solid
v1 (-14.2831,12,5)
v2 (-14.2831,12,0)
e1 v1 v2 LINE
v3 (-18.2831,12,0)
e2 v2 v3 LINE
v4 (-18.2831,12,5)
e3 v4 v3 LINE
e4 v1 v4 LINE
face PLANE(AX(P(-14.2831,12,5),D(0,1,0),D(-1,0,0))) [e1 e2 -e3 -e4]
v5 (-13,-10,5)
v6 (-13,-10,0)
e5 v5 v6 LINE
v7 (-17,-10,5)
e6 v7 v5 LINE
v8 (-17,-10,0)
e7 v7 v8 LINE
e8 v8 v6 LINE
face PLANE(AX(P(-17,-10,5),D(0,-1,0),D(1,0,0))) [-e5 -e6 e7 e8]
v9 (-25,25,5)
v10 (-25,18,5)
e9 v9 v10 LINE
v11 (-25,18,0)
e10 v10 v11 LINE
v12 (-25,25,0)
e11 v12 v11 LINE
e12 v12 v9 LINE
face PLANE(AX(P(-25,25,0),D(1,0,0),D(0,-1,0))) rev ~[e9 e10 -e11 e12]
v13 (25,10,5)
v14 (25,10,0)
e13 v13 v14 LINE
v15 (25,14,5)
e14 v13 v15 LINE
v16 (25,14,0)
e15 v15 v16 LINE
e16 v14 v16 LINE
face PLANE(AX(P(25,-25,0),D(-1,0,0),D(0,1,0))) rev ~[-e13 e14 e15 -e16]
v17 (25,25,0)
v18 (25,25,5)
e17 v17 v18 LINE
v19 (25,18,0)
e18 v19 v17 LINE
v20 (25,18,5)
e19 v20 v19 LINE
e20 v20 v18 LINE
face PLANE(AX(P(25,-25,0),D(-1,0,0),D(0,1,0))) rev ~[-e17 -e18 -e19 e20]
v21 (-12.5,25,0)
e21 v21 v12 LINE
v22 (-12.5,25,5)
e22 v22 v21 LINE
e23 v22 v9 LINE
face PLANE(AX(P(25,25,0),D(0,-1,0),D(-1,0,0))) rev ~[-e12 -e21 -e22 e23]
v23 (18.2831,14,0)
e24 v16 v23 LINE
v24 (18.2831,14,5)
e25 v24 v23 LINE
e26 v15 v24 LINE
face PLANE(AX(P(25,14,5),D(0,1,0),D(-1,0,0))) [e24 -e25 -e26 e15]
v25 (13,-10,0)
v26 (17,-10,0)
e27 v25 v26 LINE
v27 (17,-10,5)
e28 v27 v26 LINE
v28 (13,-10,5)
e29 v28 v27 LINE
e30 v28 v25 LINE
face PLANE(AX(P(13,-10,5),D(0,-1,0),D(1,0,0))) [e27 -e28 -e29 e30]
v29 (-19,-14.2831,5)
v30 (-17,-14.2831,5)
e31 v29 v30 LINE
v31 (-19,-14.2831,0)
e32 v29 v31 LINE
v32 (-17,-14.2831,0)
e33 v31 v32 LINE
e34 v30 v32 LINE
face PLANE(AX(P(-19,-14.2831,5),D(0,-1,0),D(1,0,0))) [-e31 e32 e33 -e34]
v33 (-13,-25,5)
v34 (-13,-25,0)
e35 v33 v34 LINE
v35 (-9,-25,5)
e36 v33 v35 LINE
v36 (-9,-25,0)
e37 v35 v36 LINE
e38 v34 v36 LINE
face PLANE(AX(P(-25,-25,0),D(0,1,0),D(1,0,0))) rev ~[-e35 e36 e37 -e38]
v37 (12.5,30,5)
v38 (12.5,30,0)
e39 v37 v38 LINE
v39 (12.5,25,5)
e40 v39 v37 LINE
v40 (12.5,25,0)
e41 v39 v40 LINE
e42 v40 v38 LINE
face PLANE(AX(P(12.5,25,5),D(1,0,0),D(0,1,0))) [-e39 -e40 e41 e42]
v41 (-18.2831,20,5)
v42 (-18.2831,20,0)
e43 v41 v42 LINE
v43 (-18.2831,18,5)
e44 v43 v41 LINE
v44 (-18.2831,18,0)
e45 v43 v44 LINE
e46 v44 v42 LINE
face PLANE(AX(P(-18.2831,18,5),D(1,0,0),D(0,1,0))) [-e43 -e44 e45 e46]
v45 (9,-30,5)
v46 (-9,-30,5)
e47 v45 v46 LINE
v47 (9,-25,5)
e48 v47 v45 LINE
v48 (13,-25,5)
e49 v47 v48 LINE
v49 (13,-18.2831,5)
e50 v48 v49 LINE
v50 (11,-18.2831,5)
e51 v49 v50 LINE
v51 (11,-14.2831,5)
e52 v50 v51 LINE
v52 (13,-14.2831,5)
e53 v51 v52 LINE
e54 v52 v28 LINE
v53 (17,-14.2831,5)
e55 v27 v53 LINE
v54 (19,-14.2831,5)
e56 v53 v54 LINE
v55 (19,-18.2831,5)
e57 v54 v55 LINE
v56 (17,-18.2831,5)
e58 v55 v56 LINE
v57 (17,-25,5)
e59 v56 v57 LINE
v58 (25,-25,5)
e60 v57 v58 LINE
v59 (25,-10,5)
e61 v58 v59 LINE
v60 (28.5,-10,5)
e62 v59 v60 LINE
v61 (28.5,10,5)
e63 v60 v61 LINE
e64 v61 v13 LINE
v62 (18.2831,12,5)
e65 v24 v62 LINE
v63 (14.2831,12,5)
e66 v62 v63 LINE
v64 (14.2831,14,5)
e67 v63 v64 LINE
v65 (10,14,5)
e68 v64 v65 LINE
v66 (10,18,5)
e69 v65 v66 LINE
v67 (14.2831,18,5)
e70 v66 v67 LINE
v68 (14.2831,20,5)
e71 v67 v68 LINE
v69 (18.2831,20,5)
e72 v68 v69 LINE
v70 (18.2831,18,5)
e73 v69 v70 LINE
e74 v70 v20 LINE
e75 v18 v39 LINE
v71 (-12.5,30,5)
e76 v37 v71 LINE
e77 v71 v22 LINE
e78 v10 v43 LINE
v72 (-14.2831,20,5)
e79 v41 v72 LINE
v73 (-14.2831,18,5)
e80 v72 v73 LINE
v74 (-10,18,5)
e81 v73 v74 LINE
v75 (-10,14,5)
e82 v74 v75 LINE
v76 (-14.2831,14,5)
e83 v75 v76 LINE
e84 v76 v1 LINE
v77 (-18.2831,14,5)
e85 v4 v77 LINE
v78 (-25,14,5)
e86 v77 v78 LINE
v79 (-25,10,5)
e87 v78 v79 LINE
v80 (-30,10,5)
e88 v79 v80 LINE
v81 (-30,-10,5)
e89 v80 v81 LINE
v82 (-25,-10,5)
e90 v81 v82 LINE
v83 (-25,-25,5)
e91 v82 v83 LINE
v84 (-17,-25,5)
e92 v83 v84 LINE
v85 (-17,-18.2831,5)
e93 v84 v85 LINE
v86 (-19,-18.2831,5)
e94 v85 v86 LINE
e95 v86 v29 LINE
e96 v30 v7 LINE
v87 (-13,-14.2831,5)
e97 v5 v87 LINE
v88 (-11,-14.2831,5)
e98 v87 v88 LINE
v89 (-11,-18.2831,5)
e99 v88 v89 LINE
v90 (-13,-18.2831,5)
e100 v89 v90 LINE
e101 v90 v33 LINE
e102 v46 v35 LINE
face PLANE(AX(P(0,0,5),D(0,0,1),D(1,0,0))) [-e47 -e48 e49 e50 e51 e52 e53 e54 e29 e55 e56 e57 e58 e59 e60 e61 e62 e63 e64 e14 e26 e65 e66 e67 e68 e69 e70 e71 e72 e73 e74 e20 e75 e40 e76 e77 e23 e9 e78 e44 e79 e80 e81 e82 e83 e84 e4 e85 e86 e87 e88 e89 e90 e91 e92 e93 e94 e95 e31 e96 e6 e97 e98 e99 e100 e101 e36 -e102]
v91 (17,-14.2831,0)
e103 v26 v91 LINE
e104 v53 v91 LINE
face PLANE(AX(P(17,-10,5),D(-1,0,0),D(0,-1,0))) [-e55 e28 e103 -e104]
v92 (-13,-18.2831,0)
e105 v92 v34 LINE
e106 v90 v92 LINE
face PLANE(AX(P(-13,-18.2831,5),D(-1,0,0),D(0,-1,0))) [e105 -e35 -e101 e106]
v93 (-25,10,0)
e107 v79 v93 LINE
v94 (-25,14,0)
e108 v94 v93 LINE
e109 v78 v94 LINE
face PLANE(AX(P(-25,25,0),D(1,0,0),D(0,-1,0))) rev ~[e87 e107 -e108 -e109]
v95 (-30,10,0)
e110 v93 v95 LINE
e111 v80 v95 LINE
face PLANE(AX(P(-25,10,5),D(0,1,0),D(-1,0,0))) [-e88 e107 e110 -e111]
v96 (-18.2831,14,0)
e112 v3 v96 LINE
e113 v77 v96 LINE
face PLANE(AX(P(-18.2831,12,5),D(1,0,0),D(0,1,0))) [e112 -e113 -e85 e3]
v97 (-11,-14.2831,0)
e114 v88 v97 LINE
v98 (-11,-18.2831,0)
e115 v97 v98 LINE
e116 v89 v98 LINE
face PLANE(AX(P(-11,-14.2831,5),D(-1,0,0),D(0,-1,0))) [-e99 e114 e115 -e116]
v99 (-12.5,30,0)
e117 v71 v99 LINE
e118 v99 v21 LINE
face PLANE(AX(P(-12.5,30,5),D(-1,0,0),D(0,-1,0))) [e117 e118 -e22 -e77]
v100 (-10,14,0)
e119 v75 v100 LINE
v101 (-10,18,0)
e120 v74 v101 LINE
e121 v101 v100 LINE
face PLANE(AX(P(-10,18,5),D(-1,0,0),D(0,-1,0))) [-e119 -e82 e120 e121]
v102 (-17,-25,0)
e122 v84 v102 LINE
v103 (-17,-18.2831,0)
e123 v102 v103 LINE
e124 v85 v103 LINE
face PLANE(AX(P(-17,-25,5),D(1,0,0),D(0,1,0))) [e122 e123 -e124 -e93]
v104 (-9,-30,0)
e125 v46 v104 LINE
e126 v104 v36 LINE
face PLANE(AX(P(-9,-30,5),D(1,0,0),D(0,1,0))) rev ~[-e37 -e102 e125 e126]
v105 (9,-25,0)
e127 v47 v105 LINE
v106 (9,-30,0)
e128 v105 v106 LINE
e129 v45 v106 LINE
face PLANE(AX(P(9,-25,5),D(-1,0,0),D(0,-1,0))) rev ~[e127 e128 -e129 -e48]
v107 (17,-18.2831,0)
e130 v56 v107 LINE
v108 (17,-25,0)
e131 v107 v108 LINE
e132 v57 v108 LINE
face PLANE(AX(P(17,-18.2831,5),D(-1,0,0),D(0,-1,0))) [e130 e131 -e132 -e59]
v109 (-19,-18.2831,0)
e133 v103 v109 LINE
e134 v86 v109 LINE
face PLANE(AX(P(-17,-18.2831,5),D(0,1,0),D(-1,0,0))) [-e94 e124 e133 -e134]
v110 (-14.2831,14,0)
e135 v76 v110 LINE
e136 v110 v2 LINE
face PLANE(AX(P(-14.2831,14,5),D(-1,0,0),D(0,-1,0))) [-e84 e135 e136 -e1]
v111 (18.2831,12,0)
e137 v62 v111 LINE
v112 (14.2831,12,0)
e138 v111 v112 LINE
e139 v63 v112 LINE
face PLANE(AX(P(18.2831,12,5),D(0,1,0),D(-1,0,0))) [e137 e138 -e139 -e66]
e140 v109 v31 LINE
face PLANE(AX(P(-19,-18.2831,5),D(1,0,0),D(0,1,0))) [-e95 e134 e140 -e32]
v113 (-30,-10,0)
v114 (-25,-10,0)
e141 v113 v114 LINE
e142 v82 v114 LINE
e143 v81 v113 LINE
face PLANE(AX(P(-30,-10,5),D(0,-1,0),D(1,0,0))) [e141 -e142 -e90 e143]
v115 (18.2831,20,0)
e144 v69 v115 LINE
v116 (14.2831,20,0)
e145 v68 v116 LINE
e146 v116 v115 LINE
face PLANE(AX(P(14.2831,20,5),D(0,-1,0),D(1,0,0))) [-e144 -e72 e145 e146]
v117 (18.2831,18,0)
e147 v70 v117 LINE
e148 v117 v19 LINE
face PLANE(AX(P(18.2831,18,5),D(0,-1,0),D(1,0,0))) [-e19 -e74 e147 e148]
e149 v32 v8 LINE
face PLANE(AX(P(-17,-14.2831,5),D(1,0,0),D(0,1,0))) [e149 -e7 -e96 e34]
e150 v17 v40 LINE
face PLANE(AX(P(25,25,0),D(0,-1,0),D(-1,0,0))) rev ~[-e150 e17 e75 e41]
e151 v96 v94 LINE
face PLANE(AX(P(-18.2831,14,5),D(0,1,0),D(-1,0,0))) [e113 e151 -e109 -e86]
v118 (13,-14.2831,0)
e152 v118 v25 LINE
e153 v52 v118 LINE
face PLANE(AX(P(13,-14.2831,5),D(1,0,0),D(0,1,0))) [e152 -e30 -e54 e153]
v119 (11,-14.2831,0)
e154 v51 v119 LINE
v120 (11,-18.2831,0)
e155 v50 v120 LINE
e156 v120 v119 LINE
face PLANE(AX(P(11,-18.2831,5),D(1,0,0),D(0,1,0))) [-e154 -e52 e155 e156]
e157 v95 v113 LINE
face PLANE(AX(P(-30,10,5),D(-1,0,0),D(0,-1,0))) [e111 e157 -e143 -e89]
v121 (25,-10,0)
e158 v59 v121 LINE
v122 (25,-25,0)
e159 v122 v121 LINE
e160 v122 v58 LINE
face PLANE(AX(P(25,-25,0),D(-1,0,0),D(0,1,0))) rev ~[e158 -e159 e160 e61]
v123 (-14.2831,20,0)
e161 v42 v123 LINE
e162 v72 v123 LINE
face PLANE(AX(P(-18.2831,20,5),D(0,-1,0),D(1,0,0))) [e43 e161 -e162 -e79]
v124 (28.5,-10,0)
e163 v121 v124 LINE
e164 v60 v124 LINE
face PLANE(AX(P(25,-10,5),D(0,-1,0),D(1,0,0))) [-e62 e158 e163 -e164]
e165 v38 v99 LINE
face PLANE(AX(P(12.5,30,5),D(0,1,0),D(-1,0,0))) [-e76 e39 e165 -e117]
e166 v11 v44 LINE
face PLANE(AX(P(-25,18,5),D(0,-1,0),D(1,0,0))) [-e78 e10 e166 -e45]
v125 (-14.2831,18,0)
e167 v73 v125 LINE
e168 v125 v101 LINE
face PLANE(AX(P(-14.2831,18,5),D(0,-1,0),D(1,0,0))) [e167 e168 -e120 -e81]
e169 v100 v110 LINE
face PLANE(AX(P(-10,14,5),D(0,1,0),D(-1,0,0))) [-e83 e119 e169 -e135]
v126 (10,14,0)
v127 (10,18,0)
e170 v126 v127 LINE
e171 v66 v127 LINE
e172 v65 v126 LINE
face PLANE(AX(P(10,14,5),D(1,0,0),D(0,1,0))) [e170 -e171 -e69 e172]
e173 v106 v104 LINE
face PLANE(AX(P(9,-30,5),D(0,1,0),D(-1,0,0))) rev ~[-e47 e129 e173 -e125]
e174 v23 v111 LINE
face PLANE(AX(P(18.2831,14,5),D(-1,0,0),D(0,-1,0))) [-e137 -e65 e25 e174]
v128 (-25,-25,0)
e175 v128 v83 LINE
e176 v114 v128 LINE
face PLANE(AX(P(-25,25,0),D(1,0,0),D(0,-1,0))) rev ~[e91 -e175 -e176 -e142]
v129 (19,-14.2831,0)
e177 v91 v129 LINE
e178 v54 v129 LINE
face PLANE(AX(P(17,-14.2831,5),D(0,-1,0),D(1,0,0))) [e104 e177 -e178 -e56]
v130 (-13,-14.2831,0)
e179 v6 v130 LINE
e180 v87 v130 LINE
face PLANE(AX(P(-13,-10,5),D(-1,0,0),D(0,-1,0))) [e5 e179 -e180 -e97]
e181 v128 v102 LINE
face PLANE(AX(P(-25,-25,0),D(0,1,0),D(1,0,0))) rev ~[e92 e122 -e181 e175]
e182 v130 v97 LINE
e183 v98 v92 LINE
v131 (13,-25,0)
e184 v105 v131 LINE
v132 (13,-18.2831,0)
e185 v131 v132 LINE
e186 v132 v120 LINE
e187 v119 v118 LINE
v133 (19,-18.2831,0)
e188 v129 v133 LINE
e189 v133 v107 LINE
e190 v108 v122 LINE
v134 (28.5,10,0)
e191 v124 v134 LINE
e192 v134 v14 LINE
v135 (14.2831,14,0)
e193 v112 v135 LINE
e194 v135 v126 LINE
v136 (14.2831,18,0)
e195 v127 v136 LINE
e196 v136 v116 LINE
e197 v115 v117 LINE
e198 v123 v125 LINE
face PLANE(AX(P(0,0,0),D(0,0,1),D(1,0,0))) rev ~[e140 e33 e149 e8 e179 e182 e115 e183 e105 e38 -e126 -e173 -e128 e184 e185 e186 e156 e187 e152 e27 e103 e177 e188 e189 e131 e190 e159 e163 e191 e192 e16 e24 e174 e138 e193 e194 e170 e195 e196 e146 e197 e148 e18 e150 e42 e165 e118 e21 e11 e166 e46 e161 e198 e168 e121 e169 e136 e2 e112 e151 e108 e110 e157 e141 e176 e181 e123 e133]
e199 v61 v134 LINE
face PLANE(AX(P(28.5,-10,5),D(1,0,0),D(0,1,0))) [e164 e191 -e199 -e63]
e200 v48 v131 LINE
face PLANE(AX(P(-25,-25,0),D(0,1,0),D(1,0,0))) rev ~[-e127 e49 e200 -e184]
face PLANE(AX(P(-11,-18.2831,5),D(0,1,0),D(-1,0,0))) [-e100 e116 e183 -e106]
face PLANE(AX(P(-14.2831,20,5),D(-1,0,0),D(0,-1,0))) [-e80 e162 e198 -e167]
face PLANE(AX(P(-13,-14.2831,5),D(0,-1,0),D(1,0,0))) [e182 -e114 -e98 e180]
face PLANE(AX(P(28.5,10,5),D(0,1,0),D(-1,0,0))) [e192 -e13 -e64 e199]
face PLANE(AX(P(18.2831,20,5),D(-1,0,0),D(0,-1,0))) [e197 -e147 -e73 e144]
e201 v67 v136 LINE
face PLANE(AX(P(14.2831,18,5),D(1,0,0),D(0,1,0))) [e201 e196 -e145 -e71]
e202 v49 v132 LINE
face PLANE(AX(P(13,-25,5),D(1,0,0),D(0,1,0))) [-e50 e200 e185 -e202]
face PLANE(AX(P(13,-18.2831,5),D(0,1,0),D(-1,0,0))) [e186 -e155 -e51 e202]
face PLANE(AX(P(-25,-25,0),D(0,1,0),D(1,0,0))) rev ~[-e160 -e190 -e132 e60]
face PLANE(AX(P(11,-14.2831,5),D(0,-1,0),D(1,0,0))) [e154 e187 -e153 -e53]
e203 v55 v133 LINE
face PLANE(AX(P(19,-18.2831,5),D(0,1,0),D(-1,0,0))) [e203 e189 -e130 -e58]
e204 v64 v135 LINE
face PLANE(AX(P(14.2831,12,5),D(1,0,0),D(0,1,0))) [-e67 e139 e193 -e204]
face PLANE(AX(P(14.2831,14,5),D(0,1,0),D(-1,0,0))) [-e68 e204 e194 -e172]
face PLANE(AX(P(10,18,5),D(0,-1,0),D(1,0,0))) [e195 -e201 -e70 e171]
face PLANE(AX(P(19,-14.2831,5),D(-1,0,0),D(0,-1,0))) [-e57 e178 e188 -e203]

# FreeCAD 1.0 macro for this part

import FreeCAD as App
import Part
import Sketcher
from FreeCAD import Vector

doc = App.newDocument("Part")
body = doc.addObject("PartDesign::Body", "Body")

# Sketch on XY plane
sketch1 = body.newObject("Sketcher::SketchObject", "Sketch")
sketch1.AttachmentSupport = (doc.getObject("XY_Plane"), [""])
sketch1.MapMode = "FlatFace"
sketch1.addGeometry(Part.LineSegment(Vector(-25, 25, 0), Vector(-25, -25, 0)), False)
sketch1.addGeometry(Part.LineSegment(Vector(-25, -25, 0), Vector(25, -25, 0)), False)
sketch1.addGeometry(Part.LineSegment(Vector(25, -25, 0), Vector(25, 25, 0)), False)
sketch1.addGeometry(Part.LineSegment(Vector(25, 25, 0), Vector(-25, 25, 0)), False)
sketch1.addConstraint(Sketcher.Constraint("Coincident", 0, 2, 1, 1))
sketch1.addConstraint(Sketcher.Constraint("Coincident", 1, 2, 2, 1))
sketch1.addConstraint(Sketcher.Constraint("Coincident", 2, 2, 3, 1))
sketch1.addConstraint(Sketcher.Constraint("Coincident", 3, 2, 0, 1))
sketch1.addConstraint(Sketcher.Constraint("Vertical", 0))
sketch1.addConstraint(Sketcher.Constraint("Horizontal", 1))
sketch1.addConstraint(Sketcher.Constraint("Vertical", 2))
sketch1.addConstraint(Sketcher.Constraint("Horizontal", 3))
sketch1.addConstraint(Sketcher.Constraint("Symmetric", 0, 2, 2, 2, -1, 1))
sketch1.addConstraint(Sketcher.Constraint("Equal", 3, 0))
sketch1.addConstraint(Sketcher.Constraint("DistanceX", 1, 1, 1, 2, 50.0))
pad1 = body.newObject("PartDesign::Pad", "Pad")
pad1.Profile = sketch1
pad1.Length = 5

# Sketch on XY plane
sketch2 = body.newObject("Sketcher::SketchObject", "Sketch001")
sketch2.AttachmentSupport = (doc.getObject("XY_Plane"), [""])
sketch2.MapMode = "FlatFace"
sketch2.AttachmentOffset = App.Placement(Vector(0, 0, 5), App.Rotation())
sketch2.addGeometry(Part.LineSegment(Vector(9, -25, 0), Vector(-9, -25, 0)), False)
sketch2.addGeometry(Part.LineSegment(Vector(-9, -25, 0), Vector(-9, -30, 0)), False)
sketch2.addGeometry(Part.LineSegment(Vector(-9, -30, 0), Vector(9, -30, 0)), False)
sketch2.addGeometry(Part.LineSegment(Vector(9, -30, 0), Vector(9, -25, 0)), False)
sketch2.addGeometry(Part.LineSegment(Vector(-25, -10, 0), Vector(-25, 10, 0)), False)
sketch2.addGeometry(Part.LineSegment(Vector(-25, 10, 0), Vector(-30, 10, 0)), False)
sketch2.addGeometry(Part.LineSegment(Vector(-30, 10, 0), Vector(-30, -10, 0)), False)
sketch2.addGeometry(Part.LineSegment(Vector(-30, -10, 0), Vector(-25, -10, 0)), False)
sketch2.addGeometry(Part.LineSegment(Vector(-12.5, 30, 0), Vector(-12.5, 25, 0)), False)
sketch2.addGeometry(Part.LineSegment(Vector(-12.5, 25, 0), Vector(12.5, 25, 0)), False)
sketch2.addGeometry(Part.LineSegment(Vector(12.5, 25, 0), Vector(12.5, 30, 0)), False)
sketch2.addGeometry(Part.LineSegment(Vector(12.5, 30, 0), Vector(-12.5, 30, 0)), False)
sketch2.addGeometry(Part.LineSegment(Vector(25, 10, 0), Vector(25, -10, 0)), False)
sketch2.addGeometry(Part.LineSegment(Vector(25, -10, 0), Vector(28.5, -10, 0)), False)
sketch2.addGeometry(Part.LineSegment(Vector(28.5, -10, 0), Vector(28.5, 10, 0)), False)
sketch2.addGeometry(Part.LineSegment(Vector(28.5, 10, 0), Vector(25, 10, 0)), False)
sketch2.addConstraint(Sketcher.Constraint("Coincident", 0, 2, 1, 1))
sketch2.addConstraint(Sketcher.Constraint("Coincident", 1, 2, 2, 1))
sketch2.addConstraint(Sketcher.Constraint("Coincident", 2, 2, 3, 1))
sketch2.addConstraint(Sketcher.Constraint("Coincident", 3, 2, 0, 1))
sketch2.addConstraint(Sketcher.Constraint("Coincident", 4, 2, 5, 1))
sketch2.addConstraint(Sketcher.Constraint("Coincident", 5, 2, 6, 1))
sketch2.addConstraint(Sketcher.Constraint("Coincident", 6, 2, 7, 1))
sketch2.addConstraint(Sketcher.Constraint("Coincident", 7, 2, 4, 1))
sketch2.addConstraint(Sketcher.Constraint("Coincident", 8, 2, 9, 1))
sketch2.addConstraint(Sketcher.Constraint("Coincident", 9, 2, 10, 1))
sketch2.addConstraint(Sketcher.Constraint("Coincident", 10, 2, 11, 1))
sketch2.addConstraint(Sketcher.Constraint("Coincident", 11, 2, 8, 1))
sketch2.addConstraint(Sketcher.Constraint("Coincident", 12, 2, 13, 1))
sketch2.addConstraint(Sketcher.Constraint("Coincident", 13, 2, 14, 1))
sketch2.addConstraint(Sketcher.Constraint("Coincident", 14, 2, 15, 1))
sketch2.addConstraint(Sketcher.Constraint("Coincident", 15, 2, 12, 1))
sketch2.addConstraint(Sketcher.Constraint("Horizontal", 0))
sketch2.addConstraint(Sketcher.Constraint("Vertical", 1))
sketch2.addConstraint(Sketcher.Constraint("Horizontal", 2))
sketch2.addConstraint(Sketcher.Constraint("Vertical", 3))
sketch2.addConstraint(Sketcher.Constraint("Vertical", 4))
sketch2.addConstraint(Sketcher.Constraint("Horizontal", 5))
sketch2.addConstraint(Sketcher.Constraint("Vertical", 6))
sketch2.addConstraint(Sketcher.Constraint("Horizontal", 7))
sketch2.addConstraint(Sketcher.Constraint("Vertical", 8))
sketch2.addConstraint(Sketcher.Constraint("Horizontal", 9))
sketch2.addConstraint(Sketcher.Constraint("Vertical", 10))
sketch2.addConstraint(Sketcher.Constraint("Horizontal", 11))
sketch2.addConstraint(Sketcher.Constraint("Vertical", 12))
sketch2.addConstraint(Sketcher.Constraint("Horizontal", 13))
sketch2.addConstraint(Sketcher.Constraint("Vertical", 14))
sketch2.addConstraint(Sketcher.Constraint("Horizontal", 15))
sketch2.addConstraint(Sketcher.Constraint("Symmetric", 4, 2, 12, 2, -1, 1))
sketch2.addConstraint(Sketcher.Constraint("Horizontal", 7, 2, 12, 2))
sketch2.addConstraint(Sketcher.Constraint("Horizontal", 5, 2, 14, 2))
sketch2.addConstraint(Sketcher.Constraint("Equal", 7, 1))
sketch2.addConstraint(Sketcher.Constraint("Equal", 3, 8))
sketch2.addConstraint(Sketcher.Constraint("DistanceX", 0, 2, 0, 1, 18.0))
sketch2.addConstraint(Sketcher.Constraint("DistanceX", 5, 2, 5, 1, 5.0))
sketch2.addConstraint(Sketcher.Constraint("DistanceX", 9, 1, 9, 2, 25.0))
sketch2.addConstraint(Sketcher.Constraint("DistanceY", 4, 1, 4, 2, 20.0))
sketch2.addConstraint(Sketcher.Constraint("DistanceX", 13, 1, 13, 2, 3.5))
sketch2.addConstraint(Sketcher.Constraint("DistanceY", 0, 2, -1, 1, 25.0))
sketch2.addConstraint(Sketcher.Constraint("DistanceX", 4, 2, -1, 1, 25.0))
sketch2.addConstraint(Sketcher.Constraint("DistanceY", -1, 1, 8, 2, 25.0))
sketch2.addConstraint(Sketcher.Constraint("DistanceX", 4, 2, 0, 2, 16.0))
sketch2.addConstraint(Sketcher.Constraint("DistanceX", 9, 2, 13, 2, 16.0))
pad2 = body.newObject("PartDesign::Pad", "Pad001")
pad2.Profile = sketch2
pad2.Length = 5
pad2.Reversed = True

# Sketch on XY plane
sketch3 = body.newObject("Sketcher::SketchObject", "Sketch002")
sketch3.AttachmentSupport = (doc.getObject("XY_Plane"), [""])
sketch3.MapMode = "FlatFace"
sketch3.AttachmentOffset = App.Placement(Vector(0, 0, 5), App.Rotation())
sketch3.addGeometry(Part.LineSegment(Vector(-25, 18, 0), Vector(-25, 14, 0)), False)
sketch3.addGeometry(Part.LineSegment(Vector(-25, 14, 0), Vector(-18.2831, 14, 0)), False)
sketch3.addGeometry(Part.LineSegment(Vector(-18.2831, 14, 0), Vector(-18.2831, 12, 0)), False)
sketch3.addGeometry(Part.LineSegment(Vector(-18.2831, 12, 0), Vector(-14.2831, 12, 0)), False)
sketch3.addGeometry(Part.LineSegment(Vector(-14.2831, 12, 0), Vector(-14.2831, 14, 0)), False)
sketch3.addGeometry(Part.LineSegment(Vector(-14.2831, 14, 0), Vector(-10, 14, 0)), False)
sketch3.addGeometry(Part.LineSegment(Vector(-10, 14, 0), Vector(-10, 18, 0)), False)
sketch3.addGeometry(Part.LineSegment(Vector(-10, 18, 0), Vector(-14.2831, 18, 0)), False)
sketch3.addGeometry(Part.LineSegment(Vector(-14.2831, 18, 0), Vector(-14.2831, 20, 0)), False)
sketch3.addGeometry(Part.LineSegment(Vector(-14.2831, 20, 0), Vector(-18.2831, 20, 0)), False)
sketch3.addGeometry(Part.LineSegment(Vector(-18.2831, 20, 0), Vector(-18.2831, 18, 0)), False)
sketch3.addGeometry(Part.LineSegment(Vector(-18.2831, 18, 0), Vector(-25, 18, 0)), False)
sketch3.addGeometry(Part.LineSegment(Vector(-17, -25, 0), Vector(-13, -25, 0)), False)
sketch3.addGeometry(Part.LineSegment(Vector(-13, -25, 0), Vector(-13, -18.2831, 0)), False)
sketch3.addGeometry(Part.LineSegment(Vector(-13, -18.2831, 0), Vector(-11, -18.2831, 0)), False)
sketch3.addGeometry(Part.LineSegment(Vector(-11, -18.2831, 0), Vector(-11, -14.2831, 0)), False)
sketch3.addGeometry(Part.LineSegment(Vector(-11, -14.2831, 0), Vector(-13, -14.2831, 0)), False)
sketch3.addGeometry(Part.LineSegment(Vector(-13, -14.2831, 0), Vector(-13, -10, 0)), False)
sketch3.addGeometry(Part.LineSegment(Vector(-13, -10, 0), Vector(-17, -10, 0)), False)
sketch3.addGeometry(Part.LineSegment(Vector(-17, -10, 0), Vector(-17, -14.2831, 0)), False)
sketch3.addGeometry(Part.LineSegment(Vector(-17, -14.2831, 0), Vector(-19, -14.2831, 0)), False)
sketch3.addGeometry(Part.LineSegment(Vector(-19, -14.2831, 0), Vector(-19, -18.2831, 0)), False)
sketch3.addGeometry(Part.LineSegment(Vector(-19, -18.2831, 0), Vector(-17, -18.2831, 0)), False)
sketch3.addGeometry(Part.LineSegment(Vector(-17, -18.2831, 0), Vector(-17, -25, 0)), False)
sketch3.addGeometry(Part.LineSegment(Vector(17, -10, 0), Vector(13, -10, 0)), False)
sketch3.addGeometry(Part.LineSegment(Vector(13, -10, 0), Vector(13, -14.2831, 0)), False)
sketch3.addGeometry(Part.LineSegment(Vector(13, -14.2831, 0), Vector(11, -14.2831, 0)), False)
sketch3.addGeometry(Part.LineSegment(Vector(11, -14.2831, 0), Vector(11, -18.2831, 0)), False)
sketch3.addGeometry(Part.LineSegment(Vector(11, -18.2831, 0), Vector(13, -18.2831, 0)), False)
sketch3.addGeometry(Part.LineSegment(Vector(13, -18.2831, 0), Vector(13, -25, 0)), False)
sketch3.addGeometry(Part.LineSegment(Vector(13, -25, 0), Vector(17, -25, 0)), False)
sketch3.addGeometry(Part.LineSegment(Vector(17, -25, 0), Vector(17, -18.2831, 0)), False)
sketch3.addGeometry(Part.LineSegment(Vector(17, -18.2831, 0), Vector(19, -18.2831, 0)), False)
sketch3.addGeometry(Part.LineSegment(Vector(19, -18.2831, 0), Vector(19, -14.2831, 0)), False)
sketch3.addGeometry(Part.LineSegment(Vector(19, -14.2831, 0), Vector(17, -14.2831, 0)), False)
sketch3.addGeometry(Part.LineSegment(Vector(17, -14.2831, 0), Vector(17, -10, 0)), False)
sketch3.addGeometry(Part.LineSegment(Vector(25, 14, 0), Vector(25, 18, 0)), False)
sketch3.addGeometry(Part.LineSegment(Vector(25, 18, 0), Vector(18.2831, 18, 0)), False)
sketch3.addGeometry(Part.LineSegment(Vector(18.2831, 18, 0), Vector(18.2831, 20, 0)), False)
sketch3.addGeometry(Part.LineSegment(Vector(18.2831, 20, 0), Vector(14.2831, 20, 0)), False)
sketch3.addGeometry(Part.LineSegment(Vector(14.2831, 20, 0), Vector(14.2831, 18, 0)), False)
sketch3.addGeometry(Part.LineSegment(Vector(14.2831, 18, 0), Vector(10, 18, 0)), False)
sketch3.addGeometry(Part.LineSegment(Vector(10, 18, 0), Vector(10, 14, 0)), False)
sketch3.addGeometry(Part.LineSegment(Vector(10, 14, 0), Vector(14.2831, 14, 0)), False)
sketch3.addGeometry(Part.LineSegment(Vector(14.2831, 14, 0), Vector(14.2831, 12, 0)), False)
sketch3.addGeometry(Part.LineSegment(Vector(14.2831, 12, 0), Vector(18.2831, 12, 0)), False)
sketch3.addGeometry(Part.LineSegment(Vector(18.2831, 12, 0), Vector(18.2831, 14, 0)), False)
sketch3.addGeometry(Part.LineSegment(Vector(18.2831, 14, 0), Vector(25, 14, 0)), False)
sketch3.addConstraint(Sketcher.Constraint("Coincident", 0, 2, 1, 1))
sketch3.addConstraint(Sketcher.Constraint("Coincident", 1, 2, 2, 1))
sketch3.addConstraint(Sketcher.Constraint("Coincident", 2, 2, 3, 1))
sketch3.addConstraint(Sketcher.Constraint("Coincident", 3, 2, 4, 1))
sketch3.addConstraint(Sketcher.Constraint("Coincident", 4, 2, 5, 1))
sketch3.addConstraint(Sketcher.Constraint("Coincident", 5, 2, 6, 1))
sketch3.addConstraint(Sketcher.Constraint("Coincident", 6, 2, 7, 1))
sketch3.addConstraint(Sketcher.Constraint("Coincident", 7, 2, 8, 1))
sketch3.addConstraint(Sketcher.Constraint("Coincident", 8, 2, 9, 1))
sketch3.addConstraint(Sketcher.Constraint("Coincident", 9, 2, 10, 1))
sketch3.addConstraint(Sketcher.Constraint("Coincident", 10, 2, 11, 1))
sketch3.addConstraint(Sketcher.Constraint("Coincident", 11, 2, 0, 1))
sketch3.addConstraint(Sketcher.Constraint("Coincident", 12, 2, 13, 1))
sketch3.addConstraint(Sketcher.Constraint("Coincident", 13, 2, 14, 1))
sketch3.addConstraint(Sketcher.Constraint("Coincident", 14, 2, 15, 1))
sketch3.addConstraint(Sketcher.Constraint("Coincident", 15, 2, 16, 1))
sketch3.addConstraint(Sketcher.Constraint("Coincident", 16, 2, 17, 1))
sketch3.addConstraint(Sketcher.Constraint("Coincident", 17, 2, 18, 1))
sketch3.addConstraint(Sketcher.Constraint("Coincident", 18, 2, 19, 1))
sketch3.addConstraint(Sketcher.Constraint("Coincident", 19, 2, 20, 1))
sketch3.addConstraint(Sketcher.Constraint("Coincident", 20, 2, 21, 1))
sketch3.addConstraint(Sketcher.Constraint("Coincident", 21, 2, 22, 1))
sketch3.addConstraint(Sketcher.Constraint("Coincident", 22, 2, 23, 1))
sketch3.addConstraint(Sketcher.Constraint("Coincident", 23, 2, 12, 1))
sketch3.addConstraint(Sketcher.Constraint("Coincident", 24, 2, 25, 1))
sketch3.addConstraint(Sketcher.Constraint("Coincident", 25, 2, 26, 1))
sketch3.addConstraint(Sketcher.Constraint("Coincident", 26, 2, 27, 1))
sketch3.addConstraint(Sketcher.Constraint("Coincident", 27, 2, 28, 1))
sketch3.addConstraint(Sketcher.Constraint("Coincident", 28, 2, 29, 1))
sketch3.addConstraint(Sketcher.Constraint("Coincident", 29, 2, 30, 1))
sketch3.addConstraint(Sketcher.Constraint("Coincident", 30, 2, 31, 1))
sketch3.addConstraint(Sketcher.Constraint("Coincident", 31, 2, 32, 1))
sketch3.addConstraint(Sketcher.Constraint("Coincident", 32, 2, 33, 1))
sketch3.addConstraint(Sketcher.Constraint("Coincident", 33, 2, 34, 1))
sketch3.addConstraint(Sketcher.Constraint("Coincident", 34, 2, 35, 1))
sketch3.addConstraint(Sketcher.Constraint("Coincident", 35, 2, 24, 1))
sketch3.addConstraint(Sketcher.Constraint("Coincident", 36, 2, 37, 1))
sketch3.addConstraint(Sketcher.Constraint("Coincident", 37, 2, 38, 1))
sketch3.addConstraint(Sketcher.Constraint("Coincident", 38, 2, 39, 1))
sketch3.addConstraint(Sketcher.Constraint("Coincident", 39, 2, 40, 1))
sketch3.addConstraint(Sketcher.Constraint("Coincident", 40, 2, 41, 1))
sketch3.addConstraint(Sketcher.Constraint("Coincident", 41, 2, 42, 1))
sketch3.addConstraint(Sketcher.Constraint("Coincident", 42, 2, 43, 1))
sketch3.addConstraint(Sketcher.Constraint("Coincident", 43, 2, 44, 1))
sketch3.addConstraint(Sketcher.Constraint("Coincident", 44, 2, 45, 1))
sketch3.addConstraint(Sketcher.Constraint("Coincident", 45, 2, 46, 1))
sketch3.addConstraint(Sketcher.Constraint("Coincident", 46, 2, 47, 1))
sketch3.addConstraint(Sketcher.Constraint("Coincident", 47, 2, 36, 1))
sketch3.addConstraint(Sketcher.Constraint("Vertical", 0))
sketch3.addConstraint(Sketcher.Constraint("Horizontal", 1))
sketch3.addConstraint(Sketcher.Constraint("Vertical", 2))
sketch3.addConstraint(Sketcher.Constraint("Horizontal", 3))
sketch3.addConstraint(Sketcher.Constraint("Vertical", 4))
sketch3.addConstraint(Sketcher.Constraint("Horizontal", 5))
sketch3.addConstraint(Sketcher.Constraint("Vertical", 6))
sketch3.addConstraint(Sketcher.Constraint("Horizontal", 7))
sketch3.addConstraint(Sketcher.Constraint("Vertical", 8))
sketch3.addConstraint(Sketcher.Constraint("Horizontal", 9))
sketch3.addConstraint(Sketcher.Constraint("Vertical", 10))
sketch3.addConstraint(Sketcher.Constraint("Horizontal", 11))
sketch3.addConstraint(Sketcher.Constraint("Horizontal", 12))
sketch3.addConstraint(Sketcher.Constraint("Vertical", 13))
sketch3.addConstraint(Sketcher.Constraint("Horizontal", 14))
sketch3.addConstraint(Sketcher.Constraint("Vertical", 15))
sketch3.addConstraint(Sketcher.Constraint("Horizontal", 16))
sketch3.addConstraint(Sketcher.Constraint("Vertical", 17))
sketch3.addConstraint(Sketcher.Constraint("Horizontal", 18))
sketch3.addConstraint(Sketcher.Constraint("Vertical", 19))
sketch3.addConstraint(Sketcher.Constraint("Horizontal", 20))
sketch3.addConstraint(Sketcher.Constraint("Vertical", 21))
sketch3.addConstraint(Sketcher.Constraint("Horizontal", 22))
sketch3.addConstraint(Sketcher.Constraint("Vertical", 23))
sketch3.addConstraint(Sketcher.Constraint("Horizontal", 24))
sketch3.addConstraint(Sketcher.Constraint("Vertical", 25))
sketch3.addConstraint(Sketcher.Constraint("Horizontal", 26))
sketch3.addConstraint(Sketcher.Constraint("Vertical", 27))
sketch3.addConstraint(Sketcher.Constraint("Horizontal", 28))
sketch3.addConstraint(Sketcher.Constraint("Vertical", 29))
sketch3.addConstraint(Sketcher.Constraint("Horizontal", 30))
sketch3.addConstraint(Sketcher.Constraint("Vertical", 31))
sketch3.addConstraint(Sketcher.Constraint("Horizontal", 32))
sketch3.addConstraint(Sketcher.Constraint("Vertical", 33))
sketch3.addConstraint(Sketcher.Constraint("Horizontal", 34))
sketch3.addConstraint(Sketcher.Constraint("Vertical", 35))
sketch3.addConstraint(Sketcher.Constraint("Vertical", 36))
sketch3.addConstraint(Sketcher.Constraint("Horizontal", 37))
sketch3.addConstraint(Sketcher.Constraint("Vertical", 38))
sketch3.addConstraint(Sketcher.Constraint("Horizontal", 39))
sketch3.addConstraint(Sketcher.Constraint("Vertical", 40))
sketch3.addConstraint(Sketcher.Constraint("Horizontal", 41))
sketch3.addConstraint(Sketcher.Constraint("Vertical", 42))
sketch3.addConstraint(Sketcher.Constraint("Horizontal", 43))
sketch3.addConstraint(Sketcher.Constraint("Vertical", 44))
sketch3.addConstraint(Sketcher.Constraint("Horizontal", 45))
sketch3.addConstraint(Sketcher.Constraint("Vertical", 46))
sketch3.addConstraint(Sketcher.Constraint("Horizontal", 47))
sketch3.addConstraint(Sketcher.Constraint("Symmetric", 17, 2, 24, 2, -2))
sketch3.addConstraint(Sketcher.Constraint("Symmetric", 15, 2, 26, 2, -2))
sketch3.addConstraint(Sketcher.Constraint("Symmetric", 13, 2, 28, 2, -2))
sketch3.addConstraint(Sketcher.Constraint("Symmetric", 23, 2, 30, 2, -2))
sketch3.addConstraint(Sketcher.Constraint("Symmetric", 21, 2, 32, 2, -2))
sketch3.addConstraint(Sketcher.Constraint("Symmetric", 19, 2, 34, 2, -2))
sketch3.addConstraint(Sketcher.Constraint("Symmetric", 11, 2, 36, 2, -2))
sketch3.addConstraint(Sketcher.Constraint("Symmetric", 9, 2, 38, 2, -2))
sketch3.addConstraint(Sketcher.Constraint("Symmetric", 7, 2, 40, 2, -2))
sketch3.addConstraint(Sketcher.Constraint("Symmetric", 5, 2, 42, 2, -2))
sketch3.addConstraint(Sketcher.Constraint("Symmetric", 3, 2, 44, 2, -2))
sketch3.addConstraint(Sketcher.Constraint("Symmetric", 1, 2, 46, 2, -2))
sketch3.addConstraint(Sketcher.Constraint("Horizontal", 1, 2, 4, 2))
sketch3.addConstraint(Sketcher.Constraint("Horizontal", 7, 2, 10, 2))
sketch3.addConstraint(Sketcher.Constraint("Horizontal", 16, 2, 19, 2))
sketch3.addConstraint(Sketcher.Constraint("Horizontal", 14, 2, 21, 2))
sketch3.addConstraint(Sketcher.Constraint("Vertical", 4, 2, 7, 2))
sketch3.addConstraint(Sketcher.Constraint("Vertical", 2, 2, 9, 2))
sketch3.addConstraint(Sketcher.Constraint("Vertical", 13, 2, 16, 2))
sketch3.addConstraint(Sketcher.Constraint("Vertical", 19, 2, 22, 2))
sketch3.addConstraint(Sketcher.Constraint("Equal", 9, 12))
sketch3.addConstraint(Sketcher.Constraint("Equal", 16, 20))
sketch3.addConstraint(Sketcher.Constraint("Equal", 45, 0))
sketch3.addConstraint(Sketcher.Constraint("Equal", 34, 2))
sketch3.addConstraint(Sketcher.Constraint("Equal", 4, 8))
sketch3.addConstraint(Sketcher.Constraint("Equal", 47, 13))
sketch3.addConstraint(Sketcher.Constraint("Equal", 6, 15))
sketch3.addConstraint(Sketcher.Constraint("Equal", 43, 17))
sketch3.addConstraint(Sketcher.Constraint("DistanceX", 3, 1, 3, 2, 4.0))
sketch3.addConstraint(Sketcher.Constraint("DistanceX", 0, 2, 5, 2, 15.0))
sketch3.addConstraint(Sketcher.Constraint("DistanceY", 2, 2, 9, 2, 8.0))
sketch3.addConstraint(Sketcher.Constraint("DistanceX", 35, 2, 36, 2, 8.0))
sketch3.addConstraint(Sketcher.Constraint("DistanceX", 0, 2, -1, 1, 25.0))
sketch3.addConstraint(Sketcher.Constraint("DistanceY", -1, 1, 0, 2, 14.0))
sketch3.addConstraint(Sketcher.Constraint("DistanceY", 12, 2, -1, 1, 25.0))
sketch3.addConstraint(Sketcher.Constraint("DistanceX", 1, 1, 1, 2, 6.717))
pocket1 = body.newObject("PartDesign::Pocket", "Pocket")
pocket1.Profile = sketch3
pocket1.Length = 5

doc.recompute()
